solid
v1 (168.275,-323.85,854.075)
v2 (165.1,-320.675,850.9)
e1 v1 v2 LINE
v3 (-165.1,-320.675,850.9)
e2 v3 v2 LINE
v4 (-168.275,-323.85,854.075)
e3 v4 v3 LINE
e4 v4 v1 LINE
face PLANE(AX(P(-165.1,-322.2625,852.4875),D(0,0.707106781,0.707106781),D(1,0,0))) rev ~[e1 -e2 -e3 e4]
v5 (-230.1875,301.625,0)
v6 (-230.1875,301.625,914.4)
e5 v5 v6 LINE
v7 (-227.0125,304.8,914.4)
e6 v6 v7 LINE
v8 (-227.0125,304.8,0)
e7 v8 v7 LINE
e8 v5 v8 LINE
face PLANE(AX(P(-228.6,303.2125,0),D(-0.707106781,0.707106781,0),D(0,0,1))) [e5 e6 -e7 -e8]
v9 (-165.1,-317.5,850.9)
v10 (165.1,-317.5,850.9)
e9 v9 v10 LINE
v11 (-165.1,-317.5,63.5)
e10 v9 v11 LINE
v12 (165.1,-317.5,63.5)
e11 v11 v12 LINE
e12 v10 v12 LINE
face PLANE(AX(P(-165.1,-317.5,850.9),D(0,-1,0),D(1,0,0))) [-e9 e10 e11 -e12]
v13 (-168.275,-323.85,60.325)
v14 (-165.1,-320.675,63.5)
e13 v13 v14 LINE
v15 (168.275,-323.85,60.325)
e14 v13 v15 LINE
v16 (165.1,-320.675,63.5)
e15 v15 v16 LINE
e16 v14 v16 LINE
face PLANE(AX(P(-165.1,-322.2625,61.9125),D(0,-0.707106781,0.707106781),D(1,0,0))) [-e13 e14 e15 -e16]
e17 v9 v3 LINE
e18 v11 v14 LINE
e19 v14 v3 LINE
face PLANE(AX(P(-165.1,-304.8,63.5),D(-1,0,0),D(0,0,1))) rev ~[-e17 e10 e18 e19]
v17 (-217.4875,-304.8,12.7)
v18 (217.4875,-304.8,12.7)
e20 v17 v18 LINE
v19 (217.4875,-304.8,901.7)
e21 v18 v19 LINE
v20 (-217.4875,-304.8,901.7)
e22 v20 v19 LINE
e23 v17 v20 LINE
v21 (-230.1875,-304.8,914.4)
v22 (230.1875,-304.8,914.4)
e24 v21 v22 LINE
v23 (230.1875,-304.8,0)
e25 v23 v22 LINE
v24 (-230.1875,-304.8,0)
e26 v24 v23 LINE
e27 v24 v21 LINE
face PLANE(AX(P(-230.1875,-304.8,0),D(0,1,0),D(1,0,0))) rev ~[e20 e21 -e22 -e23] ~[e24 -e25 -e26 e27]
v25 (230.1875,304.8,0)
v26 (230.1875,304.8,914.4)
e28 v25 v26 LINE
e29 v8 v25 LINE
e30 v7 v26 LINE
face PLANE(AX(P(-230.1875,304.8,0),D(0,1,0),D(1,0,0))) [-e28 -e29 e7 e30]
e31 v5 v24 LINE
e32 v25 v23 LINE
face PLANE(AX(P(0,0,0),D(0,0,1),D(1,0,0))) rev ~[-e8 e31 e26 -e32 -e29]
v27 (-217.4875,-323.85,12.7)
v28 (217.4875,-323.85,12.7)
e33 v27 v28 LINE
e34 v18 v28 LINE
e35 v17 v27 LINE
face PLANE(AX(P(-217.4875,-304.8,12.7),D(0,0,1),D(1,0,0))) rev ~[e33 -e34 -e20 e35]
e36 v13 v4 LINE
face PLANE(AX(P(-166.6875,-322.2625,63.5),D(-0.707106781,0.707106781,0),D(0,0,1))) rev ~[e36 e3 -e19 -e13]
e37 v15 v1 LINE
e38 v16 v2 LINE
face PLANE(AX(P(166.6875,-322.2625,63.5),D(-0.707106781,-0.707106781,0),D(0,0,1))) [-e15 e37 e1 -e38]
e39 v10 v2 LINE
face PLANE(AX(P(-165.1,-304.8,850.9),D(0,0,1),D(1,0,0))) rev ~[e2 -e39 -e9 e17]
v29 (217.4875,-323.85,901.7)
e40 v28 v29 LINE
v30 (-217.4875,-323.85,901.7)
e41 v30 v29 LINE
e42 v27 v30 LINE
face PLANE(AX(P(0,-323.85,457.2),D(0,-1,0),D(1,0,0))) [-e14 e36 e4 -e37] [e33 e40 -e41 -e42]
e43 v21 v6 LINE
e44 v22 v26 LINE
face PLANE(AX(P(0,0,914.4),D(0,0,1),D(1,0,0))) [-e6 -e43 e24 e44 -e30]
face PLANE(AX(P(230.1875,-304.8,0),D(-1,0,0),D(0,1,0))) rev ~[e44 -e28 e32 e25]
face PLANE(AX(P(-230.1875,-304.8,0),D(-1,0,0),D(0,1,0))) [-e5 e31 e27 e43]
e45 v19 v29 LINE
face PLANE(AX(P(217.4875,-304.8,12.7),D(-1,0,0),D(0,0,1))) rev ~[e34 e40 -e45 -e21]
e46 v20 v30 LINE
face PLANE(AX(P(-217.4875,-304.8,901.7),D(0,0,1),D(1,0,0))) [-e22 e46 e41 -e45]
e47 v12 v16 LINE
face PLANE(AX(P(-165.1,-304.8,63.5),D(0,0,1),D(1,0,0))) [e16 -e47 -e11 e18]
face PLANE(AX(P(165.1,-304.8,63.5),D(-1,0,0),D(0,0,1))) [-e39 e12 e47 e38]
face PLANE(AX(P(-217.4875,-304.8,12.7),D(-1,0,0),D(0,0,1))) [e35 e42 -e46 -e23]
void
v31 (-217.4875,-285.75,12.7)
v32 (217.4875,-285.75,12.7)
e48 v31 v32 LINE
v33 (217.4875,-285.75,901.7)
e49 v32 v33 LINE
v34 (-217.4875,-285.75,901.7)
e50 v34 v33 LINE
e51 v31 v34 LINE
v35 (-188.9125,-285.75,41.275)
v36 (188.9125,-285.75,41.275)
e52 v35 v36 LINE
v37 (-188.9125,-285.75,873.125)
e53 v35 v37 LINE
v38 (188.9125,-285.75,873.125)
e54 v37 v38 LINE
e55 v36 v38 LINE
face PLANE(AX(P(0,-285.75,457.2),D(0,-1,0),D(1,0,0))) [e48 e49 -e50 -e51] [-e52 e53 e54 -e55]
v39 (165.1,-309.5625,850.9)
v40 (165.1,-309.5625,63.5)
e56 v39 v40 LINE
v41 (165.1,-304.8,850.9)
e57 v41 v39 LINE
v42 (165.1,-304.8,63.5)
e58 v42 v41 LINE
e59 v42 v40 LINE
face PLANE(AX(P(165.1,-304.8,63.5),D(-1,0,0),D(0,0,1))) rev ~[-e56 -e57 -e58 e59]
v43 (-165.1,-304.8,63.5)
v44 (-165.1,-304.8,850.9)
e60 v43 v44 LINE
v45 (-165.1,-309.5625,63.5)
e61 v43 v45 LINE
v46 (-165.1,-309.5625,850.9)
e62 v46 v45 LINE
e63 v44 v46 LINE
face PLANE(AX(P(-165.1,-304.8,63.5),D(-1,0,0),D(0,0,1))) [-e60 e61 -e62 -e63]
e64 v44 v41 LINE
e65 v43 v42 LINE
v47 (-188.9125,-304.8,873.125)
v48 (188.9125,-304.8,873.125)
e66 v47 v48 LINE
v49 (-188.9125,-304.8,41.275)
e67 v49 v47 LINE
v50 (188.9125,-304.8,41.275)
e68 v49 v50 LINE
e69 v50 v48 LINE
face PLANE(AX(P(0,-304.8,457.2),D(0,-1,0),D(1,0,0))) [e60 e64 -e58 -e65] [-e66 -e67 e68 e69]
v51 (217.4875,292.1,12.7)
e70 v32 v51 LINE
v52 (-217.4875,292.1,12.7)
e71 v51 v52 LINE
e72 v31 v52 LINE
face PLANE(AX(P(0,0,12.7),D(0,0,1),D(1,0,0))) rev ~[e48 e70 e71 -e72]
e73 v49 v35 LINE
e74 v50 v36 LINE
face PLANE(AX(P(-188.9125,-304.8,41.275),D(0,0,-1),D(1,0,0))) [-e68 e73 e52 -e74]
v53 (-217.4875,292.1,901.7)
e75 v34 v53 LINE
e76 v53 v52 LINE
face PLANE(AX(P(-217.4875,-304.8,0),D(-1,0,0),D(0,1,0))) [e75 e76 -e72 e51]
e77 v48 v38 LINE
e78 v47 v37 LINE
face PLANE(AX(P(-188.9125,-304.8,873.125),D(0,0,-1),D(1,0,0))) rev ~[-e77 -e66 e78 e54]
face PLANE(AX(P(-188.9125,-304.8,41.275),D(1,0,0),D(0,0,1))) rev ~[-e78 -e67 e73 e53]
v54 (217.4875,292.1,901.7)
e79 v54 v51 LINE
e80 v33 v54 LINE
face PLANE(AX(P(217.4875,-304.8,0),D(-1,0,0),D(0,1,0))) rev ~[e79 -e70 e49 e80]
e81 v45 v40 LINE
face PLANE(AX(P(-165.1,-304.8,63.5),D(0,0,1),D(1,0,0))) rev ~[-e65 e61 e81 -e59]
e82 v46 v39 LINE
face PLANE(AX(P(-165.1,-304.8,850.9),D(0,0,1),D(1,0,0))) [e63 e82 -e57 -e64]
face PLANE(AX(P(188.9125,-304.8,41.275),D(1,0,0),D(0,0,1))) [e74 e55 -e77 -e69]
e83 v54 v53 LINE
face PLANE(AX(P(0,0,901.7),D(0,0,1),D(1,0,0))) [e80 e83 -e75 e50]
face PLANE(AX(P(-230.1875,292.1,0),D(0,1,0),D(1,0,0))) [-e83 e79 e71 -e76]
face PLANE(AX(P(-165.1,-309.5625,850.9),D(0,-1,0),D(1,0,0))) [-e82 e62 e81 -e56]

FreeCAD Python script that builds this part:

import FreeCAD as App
import Part
import Sketcher
from FreeCAD import Vector
Q = App.Units.Quantity


def edges_at(feature, points):
    """Names of the edges that pass closest to the given points."""
    edges = feature.Shape.Edges
    near = lambda p: min(range(len(edges)), key=lambda i: edges[i].distToShape(Part.Vertex(*p))[0])
    return sorted({f"Edge{near(p) + 1}" for p in points})


def faces_at(feature, points):
    """Names of the faces that lie closest to the given points."""
    faces = feature.Shape.Faces
    near = lambda p: min(range(len(faces)), key=lambda i: faces[i].distToShape(Part.Vertex(*p))[0])
    return sorted({f"Face{near(p) + 1}" for p in points})


def add_polygon(sketch, points):
    """Adds a closed chain of lines whose ends are joined by coincident constraints."""
    first, n = sketch.GeometryCount, len(points)
    for a, b in zip(points, points[1:] + points[:1]):
        sketch.addGeometry(Part.LineSegment(App.Vector(*a, 0), App.Vector(*b, 0)), False)
    for i in range(n):
        sketch.addConstraint(Sketcher.Constraint("Coincident", first + i, 2, first + (i + 1) % n, 1))

doc = App.newDocument("Part")
params = doc.addObject("Spreadsheet::Sheet", "Params")
for row, (alias, value) in enumerate([
    ("sketch1_height", "24 in"),
    ("sketch1_width", "18.125 in"),
    ("pad1_length", "36 in"),
    ("thickness_wall", "0.5 in"),
    ("sketch2_height", "36 in"),
    ("sketch2_height2", "35 in"),
    ("sketch2_width", "17.5 in"),
    ("sketch2_height3", "35.5 in"),
    ("sketch2_height4", "32.75 in"),
    ("pad2_length", "0.75 in"),
    ("sketch3_width", "13 in"),
    ("sketch3_height", "35 in"),
    ("sketch3_height2", "31 in"),
    ("sketch3_width2", "17.125 in"),
    ("pad3_length", "0.75 in"),
    ("sketch4_width", "13 in"),
    ("sketch4_height", "0.3125 in"),
    ("chamfer_size", "0.125 in"),
], start=1):
    params.set(f"A{row}", alias)
    params.set(f"B{row}", "=" + value)
    params.setAlias(f"B{row}", alias)

body = doc.addObject("PartDesign::Body", "Body")

# Sketch on XY plane
sketch1 = body.newObject("Sketcher::SketchObject", "Sketch")
sketch1.AttachmentSupport = (doc.getObject("XY_Plane"), [""])
sketch1.MapMode = "FlatFace"
add_polygon(sketch1, [(-230, 305), (-230, -305), (230, -305), (230, 305)])  # lines 0-3
sketch1.addConstraint([
    Sketcher.Constraint("Vertical", 0),
    Sketcher.Constraint("Horizontal", 1),
    Sketcher.Constraint("Vertical", 2),
    Sketcher.Constraint("Horizontal", 3),
    Sketcher.Constraint("Symmetric", 0, 2, 2, 2, -1, 1),
    Sketcher.Constraint("DistanceY", 0, 2, 0, 1, Q("24 in")),
    Sketcher.Constraint("DistanceX", 1, 1, 1, 2, Q("18.125 in")),
])
sketch1.setExpression("Constraints[9]", "Params.sketch1_height")
sketch1.setExpression("Constraints[10]", "Params.sketch1_width")
pad1 = body.newObject("PartDesign::Pad", "Pad")
pad1.Profile = sketch1
pad1.setExpression("Length", "Params.pad1_length")
doc.recompute()

thickness = body.newObject("PartDesign::Thickness", "Thickness")
thickness.Base = (pad1, faces_at(pad1, [(0, -304.8, 457.2)]))
thickness.setExpression("Value", "Params.thickness_wall")
thickness.Reversed = True
thickness.Join = "Arc"

# Sketch on XZ plane
sketch2 = body.newObject("Sketcher::SketchObject", "Sketch001")
sketch2.AttachmentSupport = (doc.getObject("XZ_Plane"), [""])
sketch2.MapMode = "FlatFace"
sketch2.AttachmentOffset = App.Placement(Vector(0, 0, 12 * 25.4), App.Rotation())
add_polygon(sketch2, [(-230, 914), (-230, 0), (230, 0), (230, 914)])  # lines 0-3
add_polygon(sketch2, [(222, 6), (-222, 6), (-222, 908), (222, 908)])  # lines 4-7
add_polygon(sketch2, [(-217, 902), (-217, 13), (217, 13), (217, 902)])  # lines 8-11
add_polygon(sketch2, [(189, 41), (-189, 41), (-189, 873), (189, 873)])  # lines 12-15
sketch2.addConstraint([
    Sketcher.Constraint("Vertical", 0),
    Sketcher.Constraint("Horizontal", 1),
    Sketcher.Constraint("Vertical", 2),
    Sketcher.Constraint("Horizontal", 3),
    Sketcher.Constraint("Horizontal", 4),
    Sketcher.Constraint("Vertical", 5),
    Sketcher.Constraint("Horizontal", 6),
    Sketcher.Constraint("Vertical", 7),
    Sketcher.Constraint("Vertical", 8),
    Sketcher.Constraint("Horizontal", 9),
    Sketcher.Constraint("Vertical", 10),
    Sketcher.Constraint("Horizontal", 11),
    Sketcher.Constraint("Horizontal", 12),
    Sketcher.Constraint("Vertical", 13),
    Sketcher.Constraint("Horizontal", 14),
    Sketcher.Constraint("Vertical", 15),
    Sketcher.Constraint("Symmetric", 0, 2, 1, 2, -1, 1),
    Sketcher.Constraint("DistanceY", 0, 2, 0, 1, Q("36 in")),
    Sketcher.Constraint("DistanceY", 8, 2, 8, 1, Q("35 in")),
    Sketcher.Constraint("DistanceX", 4, 2, 4, 1, Q("17.5 in")),
    Sketcher.Constraint("DistanceY", 5, 1, 5, 2, Q("35.5 in")),
    Sketcher.Constraint("DistanceX", 12, 2, 9, 2, Q("16 in")),
    Sketcher.Constraint("DistanceX", 11, 2, 14, 2, Q("16 in")),
    Sketcher.Constraint("DistanceY", 13, 1, 13, 2, Q("32.75 in")),
    Sketcher.Constraint("DistanceY", -1, 1, 8, 2, Q("0.5 in")),
    Sketcher.Constraint("DistanceX", 0, 2, 8, 2, Q("0.5 in")),
    Sketcher.Constraint("DistanceX", 9, 2, 1, 2, Q("0.5 in")),
    Sketcher.Constraint("DistanceX", 1, 1, 1, 2, Q("18.125 in")),
    Sketcher.Constraint("DistanceX", 4, 2, -1, 1, Q("8.75 in")),
    Sketcher.Constraint("DistanceY", -1, 1, 4, 2, Q("0.25 in")),
    Sketcher.Constraint("DistanceY", -1, 1, 12, 2, Q("1.625 in")),
])
sketch2.setExpression("Constraints[33]", "Params.sketch2_height")
sketch2.setExpression("Constraints[34]", "Params.sketch2_height2")
sketch2.setExpression("Constraints[35]", "Params.sketch2_width")
sketch2.setExpression("Constraints[36]", "Params.sketch2_height3")
sketch2.setExpression("Constraints[39]", "Params.sketch2_height4")
pad2 = body.newObject("PartDesign::Pad", "Pad001")
pad2.Profile = sketch2
pad2.setExpression("Length", "Params.pad2_length")
pad2.Reversed = True

# Sketch on XZ plane
sketch3 = body.newObject("Sketcher::SketchObject", "Sketch002")
sketch3.AttachmentSupport = (doc.getObject("XZ_Plane"), [""])
sketch3.MapMode = "FlatFace"
sketch3.AttachmentOffset = App.Placement(Vector(0, 0, 12 * 25.4), App.Rotation())
add_polygon(sketch3, [(-217, 902), (-217, 13), (217, 13), (217, 902)])  # lines 0-3
add_polygon(sketch3, [(165, 64), (-165, 64), (-165, 851), (165, 851)])  # lines 4-7
sketch3.addConstraint([
    Sketcher.Constraint("Vertical", 0),
    Sketcher.Constraint("Horizontal", 1),
    Sketcher.Constraint("Vertical", 2),
    Sketcher.Constraint("Horizontal", 3),
    Sketcher.Constraint("Horizontal", 4),
    Sketcher.Constraint("Vertical", 5),
    Sketcher.Constraint("Horizontal", 6),
    Sketcher.Constraint("Vertical", 7),
    Sketcher.Constraint("DistanceX", 4, 2, 4, 1, Q("13 in")),
    Sketcher.Constraint("DistanceY", 0, 2, 0, 1, Q("35 in")),
    Sketcher.Constraint("DistanceY", 5, 1, 5, 2, Q("31 in")),
    Sketcher.Constraint("DistanceY", 0, 2, 4, 2, Q("2 in")),
    Sketcher.Constraint("DistanceY", -1, 1, 0, 2, Q("0.5 in")),
    Sketcher.Constraint("DistanceX", 4, 2, -1, 1, Q("6.5 in")),
    Sketcher.Constraint("DistanceX", 1, 1, 1, 2, Q("17.125 in")),
    Sketcher.Constraint("DistanceX", 0, 2, -1, 1, Q("8.5625 in")),
])
sketch3.setExpression("Constraints[16]", "Params.sketch3_width")
sketch3.setExpression("Constraints[17]", "Params.sketch3_height")
sketch3.setExpression("Constraints[18]", "Params.sketch3_height2")
sketch3.setExpression("Constraints[22]", "Params.sketch3_width2")
pad3 = body.newObject("PartDesign::Pad", "Pad002")
pad3.Profile = sketch3
pad3.setExpression("Length", "Params.pad3_length")

# Sketch on XY plane
sketch4 = body.newObject("Sketcher::SketchObject", "Sketch003")
sketch4.AttachmentSupport = (doc.getObject("XY_Plane"), [""])
sketch4.MapMode = "FlatFace"
sketch4.AttachmentOffset = App.Placement(Vector(0, 0, 33.5 * 25.4), App.Rotation())
add_polygon(sketch4, [(-165, -318), (-165, -310), (165, -310), (165, -318)])  # lines 0-3
sketch4.addConstraint([
    Sketcher.Constraint("Vertical", 0),
    Sketcher.Constraint("Horizontal", 1),
    Sketcher.Constraint("Vertical", 2),
    Sketcher.Constraint("Horizontal", 3),
    Sketcher.Constraint("DistanceX", 1, 1, 1, 2, Q("13 in")),
    Sketcher.Constraint("DistanceX", 0, 2, -1, 1, Q("6.5 in")),
    Sketcher.Constraint("DistanceY", 2, 2, -1, 1, Q("12.5 in")),
    Sketcher.Constraint("DistanceY", 0, 1, 0, 2, Q("0.3125 in")),
])
sketch4.setExpression("Constraints[8]", "Params.sketch4_width")
sketch4.setExpression("Constraints[11]", "Params.sketch4_height")
pad4 = body.newObject("PartDesign::Pad", "Pad003")
pad4.Profile = sketch4
pad4.Type = "UpToLast"
pad4.Reversed = True
doc.recompute()

chamfer = body.newObject("PartDesign::Chamfer", "Chamfer")
chamfer.Base = (pad4, edges_at(pad4, [
    (0, -323.85, 63.5),
    (-165.1, -323.85, 457.2),
    (165.1, -323.85, 457.2),
    (0, -323.85, 850.9),
    (-230.188, 304.8, 457.2),
]))
chamfer.setExpression("Size", "Params.chamfer_size")

doc.recompute()
